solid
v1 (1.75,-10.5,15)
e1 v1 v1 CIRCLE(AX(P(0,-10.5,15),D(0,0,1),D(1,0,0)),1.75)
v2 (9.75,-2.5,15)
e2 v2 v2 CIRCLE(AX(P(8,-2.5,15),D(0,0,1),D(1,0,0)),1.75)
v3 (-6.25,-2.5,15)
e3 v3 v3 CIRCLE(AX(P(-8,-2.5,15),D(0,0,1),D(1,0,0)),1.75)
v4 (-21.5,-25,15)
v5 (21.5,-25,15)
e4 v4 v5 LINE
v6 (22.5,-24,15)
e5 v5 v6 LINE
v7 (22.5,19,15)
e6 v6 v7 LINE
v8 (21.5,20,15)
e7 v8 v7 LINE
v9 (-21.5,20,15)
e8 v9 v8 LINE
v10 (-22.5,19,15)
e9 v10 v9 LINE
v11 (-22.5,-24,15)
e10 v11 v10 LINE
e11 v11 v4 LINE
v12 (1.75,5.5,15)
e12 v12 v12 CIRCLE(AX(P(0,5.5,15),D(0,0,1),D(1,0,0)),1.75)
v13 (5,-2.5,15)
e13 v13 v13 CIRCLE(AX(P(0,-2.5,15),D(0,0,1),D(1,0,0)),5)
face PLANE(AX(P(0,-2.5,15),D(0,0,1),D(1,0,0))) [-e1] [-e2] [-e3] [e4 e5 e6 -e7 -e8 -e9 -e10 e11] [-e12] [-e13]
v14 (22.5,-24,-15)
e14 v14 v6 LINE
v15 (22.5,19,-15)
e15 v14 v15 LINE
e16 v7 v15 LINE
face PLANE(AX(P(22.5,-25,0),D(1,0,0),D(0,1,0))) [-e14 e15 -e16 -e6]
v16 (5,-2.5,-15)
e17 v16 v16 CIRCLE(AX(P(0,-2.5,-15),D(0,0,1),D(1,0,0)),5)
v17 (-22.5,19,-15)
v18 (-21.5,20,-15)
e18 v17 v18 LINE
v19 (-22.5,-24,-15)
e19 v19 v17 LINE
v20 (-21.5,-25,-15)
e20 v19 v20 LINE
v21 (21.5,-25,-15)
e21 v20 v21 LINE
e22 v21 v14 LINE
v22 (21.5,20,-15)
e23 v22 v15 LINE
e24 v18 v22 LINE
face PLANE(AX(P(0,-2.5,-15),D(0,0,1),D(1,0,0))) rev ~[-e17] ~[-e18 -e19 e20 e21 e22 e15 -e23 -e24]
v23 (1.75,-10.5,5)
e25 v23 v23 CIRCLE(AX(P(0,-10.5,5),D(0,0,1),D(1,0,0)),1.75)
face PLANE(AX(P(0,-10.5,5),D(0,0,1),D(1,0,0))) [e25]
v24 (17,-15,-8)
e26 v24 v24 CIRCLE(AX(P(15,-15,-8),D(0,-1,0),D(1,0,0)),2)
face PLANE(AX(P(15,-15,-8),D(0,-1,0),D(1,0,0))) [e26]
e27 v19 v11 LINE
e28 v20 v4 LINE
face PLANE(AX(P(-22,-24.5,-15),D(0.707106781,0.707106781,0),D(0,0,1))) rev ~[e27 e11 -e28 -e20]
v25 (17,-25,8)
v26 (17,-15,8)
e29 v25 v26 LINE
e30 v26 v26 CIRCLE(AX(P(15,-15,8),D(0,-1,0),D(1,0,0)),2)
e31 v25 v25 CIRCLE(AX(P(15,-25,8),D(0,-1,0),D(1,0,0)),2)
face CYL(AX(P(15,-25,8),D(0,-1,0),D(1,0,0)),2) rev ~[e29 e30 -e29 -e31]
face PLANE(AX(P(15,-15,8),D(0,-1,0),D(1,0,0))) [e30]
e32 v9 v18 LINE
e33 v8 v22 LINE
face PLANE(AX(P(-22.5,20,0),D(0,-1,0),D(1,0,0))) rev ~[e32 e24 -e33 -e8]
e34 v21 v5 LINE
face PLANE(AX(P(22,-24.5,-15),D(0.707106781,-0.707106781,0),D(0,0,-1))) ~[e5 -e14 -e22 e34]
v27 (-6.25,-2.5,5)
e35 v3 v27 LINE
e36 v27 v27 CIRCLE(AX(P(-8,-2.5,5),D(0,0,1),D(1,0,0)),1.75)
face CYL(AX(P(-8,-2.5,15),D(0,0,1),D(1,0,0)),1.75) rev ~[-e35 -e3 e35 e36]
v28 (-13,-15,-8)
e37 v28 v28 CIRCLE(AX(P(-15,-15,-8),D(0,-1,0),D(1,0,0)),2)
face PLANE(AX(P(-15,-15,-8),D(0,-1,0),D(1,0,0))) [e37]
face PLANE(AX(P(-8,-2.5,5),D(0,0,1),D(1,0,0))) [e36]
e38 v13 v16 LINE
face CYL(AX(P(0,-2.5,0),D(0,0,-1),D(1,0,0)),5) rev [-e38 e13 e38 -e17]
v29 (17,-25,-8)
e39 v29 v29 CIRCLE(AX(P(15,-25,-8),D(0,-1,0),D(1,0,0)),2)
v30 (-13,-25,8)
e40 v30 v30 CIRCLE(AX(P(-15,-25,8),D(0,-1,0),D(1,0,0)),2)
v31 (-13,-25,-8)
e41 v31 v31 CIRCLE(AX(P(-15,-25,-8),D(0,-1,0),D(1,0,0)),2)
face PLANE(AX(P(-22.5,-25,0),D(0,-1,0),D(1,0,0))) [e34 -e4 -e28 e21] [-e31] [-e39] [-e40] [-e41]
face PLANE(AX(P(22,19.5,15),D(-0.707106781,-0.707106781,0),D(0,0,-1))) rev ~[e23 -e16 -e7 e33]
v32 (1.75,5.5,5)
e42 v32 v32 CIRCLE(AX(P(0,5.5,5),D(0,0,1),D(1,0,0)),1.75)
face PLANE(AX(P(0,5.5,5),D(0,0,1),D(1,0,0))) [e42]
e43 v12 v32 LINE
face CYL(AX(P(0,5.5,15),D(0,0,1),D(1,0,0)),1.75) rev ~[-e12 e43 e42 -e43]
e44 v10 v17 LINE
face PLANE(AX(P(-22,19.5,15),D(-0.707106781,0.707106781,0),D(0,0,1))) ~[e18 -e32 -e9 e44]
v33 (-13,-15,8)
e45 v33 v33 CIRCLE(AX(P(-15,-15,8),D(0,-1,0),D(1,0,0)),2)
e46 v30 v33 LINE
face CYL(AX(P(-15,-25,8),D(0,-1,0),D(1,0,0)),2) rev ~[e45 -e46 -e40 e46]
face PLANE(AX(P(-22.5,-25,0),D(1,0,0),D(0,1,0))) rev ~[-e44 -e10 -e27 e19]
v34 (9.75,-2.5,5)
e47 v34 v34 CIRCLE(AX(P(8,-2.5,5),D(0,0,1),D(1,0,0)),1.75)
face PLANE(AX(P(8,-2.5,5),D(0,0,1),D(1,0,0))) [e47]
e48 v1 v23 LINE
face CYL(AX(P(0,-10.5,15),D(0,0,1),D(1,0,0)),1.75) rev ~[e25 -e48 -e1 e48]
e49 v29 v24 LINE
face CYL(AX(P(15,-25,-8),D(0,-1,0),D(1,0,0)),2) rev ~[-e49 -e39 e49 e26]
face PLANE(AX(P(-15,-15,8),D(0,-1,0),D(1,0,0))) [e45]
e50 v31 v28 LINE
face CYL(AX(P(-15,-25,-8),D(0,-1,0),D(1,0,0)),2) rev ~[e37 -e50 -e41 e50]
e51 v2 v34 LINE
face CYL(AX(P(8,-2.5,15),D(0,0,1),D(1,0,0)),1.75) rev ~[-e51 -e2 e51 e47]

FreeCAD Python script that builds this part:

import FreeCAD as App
import Part
import Sketcher
from FreeCAD import Vector


def edges_at(feature, points):
    """Names of the edges that pass closest to the given points."""
    edges = feature.Shape.Edges
    near = lambda p: min(range(len(edges)), key=lambda i: edges[i].distToShape(Part.Vertex(*p))[0])
    return sorted({f"Edge{near(p) + 1}" for p in points})


def add_polygon(sketch, points):
    """Adds a closed chain of lines whose ends are joined by coincident constraints."""
    first, n = sketch.GeometryCount, len(points)
    for a, b in zip(points, points[1:] + points[:1]):
        sketch.addGeometry(Part.LineSegment(App.Vector(*a, 0), App.Vector(*b, 0)), False)
    for i in range(n):
        sketch.addConstraint(Sketcher.Constraint("Coincident", first + i, 2, first + (i + 1) % n, 1))

doc = App.newDocument("Part")
body = doc.addObject("PartDesign::Body", "Body")

# Sketch on XY plane
sketch1 = doc.addObject("Sketcher::SketchObject", "Sketch")
body.addObject(sketch1)
sketch1.AttachmentSupport = (doc.XY_Plane, [""])
sketch1.MapMode = "FlatFace"
add_polygon(sketch1, [(-22, 20), (-22, -25), (22, -25), (22, 20)])  # lines 0-3
sketch1.addGeometry(Part.Circle(Vector(0, -2, 0), Vector(0, 0, 1), 5), False)  # 4
sketch1.addConstraint([
    Sketcher.Constraint("Vertical", 0),
    Sketcher.Constraint("Horizontal", 1),
    Sketcher.Constraint("Vertical", 2),
    Sketcher.Constraint("Horizontal", 3),
    Sketcher.Constraint("PointOnObject", 4, 3, -2),
    Sketcher.Constraint("Equal", 3, 0),
    Sketcher.Constraint("Diameter", 4, 10.0),
    Sketcher.Constraint("DistanceX", 1, 1, 1, 2, 45.0),
    Sketcher.Constraint("DistanceY", 0, 2, -1, 1, 25.0),
    Sketcher.Constraint("DistanceY", 4, 3, -1, 1, 2.5),
    Sketcher.Constraint("DistanceX", 0, 2, -1, 1, 22.5),
])
pad1 = doc.addObject("PartDesign::Pad", "Pad")
body.addObject(pad1)
pad1.Profile = sketch1
pad1.Length = 30
pad1.Midplane = True

# Sketch on XY plane
sketch2 = doc.addObject("Sketcher::SketchObject", "Sketch001")
body.addObject(sketch2)
sketch2.AttachmentSupport = (doc.XY_Plane, [""])
sketch2.MapMode = "FlatFace"
sketch2.AttachmentOffset = App.Placement(Vector(0, 0, 15), App.Rotation())
sketch2.addGeometry([
    Part.Circle(Vector(0, 5.5, 0), Vector(0, 0, 1), 1.8),
    Part.Circle(Vector(0, -10.5, 0), Vector(0, 0, 1), 1.8),
    Part.Circle(Vector(8, -2.5, 0), Vector(0, 0, 1), 1.8),
    Part.Circle(Vector(-8, -2.5, 0), Vector(0, 0, 1), 1.8),
], False)
sketch2.addConstraint([
    Sketcher.Constraint("Equal", 0, 1),
    Sketcher.Constraint("Equal", 1, 2),
    Sketcher.Constraint("Equal", 2, 3),
    Sketcher.Constraint("Symmetric", 2, 3, 3, 3, -2),
    Sketcher.Constraint("PointOnObject", 0, 3, -2),
    Sketcher.Constraint("PointOnObject", 1, 3, -2),
    Sketcher.Constraint("Diameter", 0, 3.5),
    Sketcher.Constraint("DistanceX", -1, 1, 2, 3, 8.0),
    Sketcher.Constraint("DistanceY", 1, 3, 0, 3, 16.0),
    Sketcher.Constraint("DistanceY", 2, 3, 0, 3, 8.0),
    Sketcher.Constraint("DistanceY", -1, 1, 0, 3, 5.5),
])
pocket1 = doc.addObject("PartDesign::Pocket", "Pocket")
body.addObject(pocket1)
pocket1.Profile = sketch2
pocket1.Length = 10
doc.recompute()

chamfer = doc.addObject("PartDesign::Chamfer", "Chamfer")
body.addObject(chamfer)
chamfer.Base = (pocket1, edges_at(pocket1, [
    (-22.5, 20, 0),
    (22.5, 20, 0),
    (22.5, -25, 0),
    (-22.5, -25, 0),
]))
chamfer.Size = 1

# Sketch on XZ plane
sketch3 = doc.addObject("Sketcher::SketchObject", "Sketch002")
body.addObject(sketch3)
sketch3.AttachmentSupport = (doc.XZ_Plane, [""])
sketch3.MapMode = "FlatFace"
sketch3.AttachmentOffset = App.Placement(Vector(0, 0, 25), App.Rotation())
sketch3.addGeometry([
    Part.Circle(Vector(-15, 8, 0), Vector(0, 0, 1), 2),
    Part.Circle(Vector(15, 8, 0), Vector(0, 0, 1), 2),
    Part.Circle(Vector(15, -8, 0), Vector(0, 0, 1), 2),
    Part.Circle(Vector(-15, -8, 0), Vector(0, 0, 1), 2),
], False)
sketch3.addConstraint([
    Sketcher.Constraint("Equal", 0, 1),
    Sketcher.Constraint("Equal", 1, 2),
    Sketcher.Constraint("Equal", 2, 3),
    Sketcher.Constraint("Symmetric", 0, 3, 2, 3, -1, 1),
    Sketcher.Constraint("Symmetric", 1, 3, 3, 3, -1, 1),
    Sketcher.Constraint("Symmetric", 0, 3, 1, 3, -2),
    Sketcher.Constraint("Diameter", 0, 4.0),
    Sketcher.Constraint("DistanceX", 0, 3, -1, 1, 15.0),
    Sketcher.Constraint("DistanceY", -1, 1, 0, 3, 8.0),
])
pocket2 = doc.addObject("PartDesign::Pocket", "Pocket001")
body.addObject(pocket2)
pocket2.Profile = sketch3
pocket2.Length = 10

doc.recompute()
